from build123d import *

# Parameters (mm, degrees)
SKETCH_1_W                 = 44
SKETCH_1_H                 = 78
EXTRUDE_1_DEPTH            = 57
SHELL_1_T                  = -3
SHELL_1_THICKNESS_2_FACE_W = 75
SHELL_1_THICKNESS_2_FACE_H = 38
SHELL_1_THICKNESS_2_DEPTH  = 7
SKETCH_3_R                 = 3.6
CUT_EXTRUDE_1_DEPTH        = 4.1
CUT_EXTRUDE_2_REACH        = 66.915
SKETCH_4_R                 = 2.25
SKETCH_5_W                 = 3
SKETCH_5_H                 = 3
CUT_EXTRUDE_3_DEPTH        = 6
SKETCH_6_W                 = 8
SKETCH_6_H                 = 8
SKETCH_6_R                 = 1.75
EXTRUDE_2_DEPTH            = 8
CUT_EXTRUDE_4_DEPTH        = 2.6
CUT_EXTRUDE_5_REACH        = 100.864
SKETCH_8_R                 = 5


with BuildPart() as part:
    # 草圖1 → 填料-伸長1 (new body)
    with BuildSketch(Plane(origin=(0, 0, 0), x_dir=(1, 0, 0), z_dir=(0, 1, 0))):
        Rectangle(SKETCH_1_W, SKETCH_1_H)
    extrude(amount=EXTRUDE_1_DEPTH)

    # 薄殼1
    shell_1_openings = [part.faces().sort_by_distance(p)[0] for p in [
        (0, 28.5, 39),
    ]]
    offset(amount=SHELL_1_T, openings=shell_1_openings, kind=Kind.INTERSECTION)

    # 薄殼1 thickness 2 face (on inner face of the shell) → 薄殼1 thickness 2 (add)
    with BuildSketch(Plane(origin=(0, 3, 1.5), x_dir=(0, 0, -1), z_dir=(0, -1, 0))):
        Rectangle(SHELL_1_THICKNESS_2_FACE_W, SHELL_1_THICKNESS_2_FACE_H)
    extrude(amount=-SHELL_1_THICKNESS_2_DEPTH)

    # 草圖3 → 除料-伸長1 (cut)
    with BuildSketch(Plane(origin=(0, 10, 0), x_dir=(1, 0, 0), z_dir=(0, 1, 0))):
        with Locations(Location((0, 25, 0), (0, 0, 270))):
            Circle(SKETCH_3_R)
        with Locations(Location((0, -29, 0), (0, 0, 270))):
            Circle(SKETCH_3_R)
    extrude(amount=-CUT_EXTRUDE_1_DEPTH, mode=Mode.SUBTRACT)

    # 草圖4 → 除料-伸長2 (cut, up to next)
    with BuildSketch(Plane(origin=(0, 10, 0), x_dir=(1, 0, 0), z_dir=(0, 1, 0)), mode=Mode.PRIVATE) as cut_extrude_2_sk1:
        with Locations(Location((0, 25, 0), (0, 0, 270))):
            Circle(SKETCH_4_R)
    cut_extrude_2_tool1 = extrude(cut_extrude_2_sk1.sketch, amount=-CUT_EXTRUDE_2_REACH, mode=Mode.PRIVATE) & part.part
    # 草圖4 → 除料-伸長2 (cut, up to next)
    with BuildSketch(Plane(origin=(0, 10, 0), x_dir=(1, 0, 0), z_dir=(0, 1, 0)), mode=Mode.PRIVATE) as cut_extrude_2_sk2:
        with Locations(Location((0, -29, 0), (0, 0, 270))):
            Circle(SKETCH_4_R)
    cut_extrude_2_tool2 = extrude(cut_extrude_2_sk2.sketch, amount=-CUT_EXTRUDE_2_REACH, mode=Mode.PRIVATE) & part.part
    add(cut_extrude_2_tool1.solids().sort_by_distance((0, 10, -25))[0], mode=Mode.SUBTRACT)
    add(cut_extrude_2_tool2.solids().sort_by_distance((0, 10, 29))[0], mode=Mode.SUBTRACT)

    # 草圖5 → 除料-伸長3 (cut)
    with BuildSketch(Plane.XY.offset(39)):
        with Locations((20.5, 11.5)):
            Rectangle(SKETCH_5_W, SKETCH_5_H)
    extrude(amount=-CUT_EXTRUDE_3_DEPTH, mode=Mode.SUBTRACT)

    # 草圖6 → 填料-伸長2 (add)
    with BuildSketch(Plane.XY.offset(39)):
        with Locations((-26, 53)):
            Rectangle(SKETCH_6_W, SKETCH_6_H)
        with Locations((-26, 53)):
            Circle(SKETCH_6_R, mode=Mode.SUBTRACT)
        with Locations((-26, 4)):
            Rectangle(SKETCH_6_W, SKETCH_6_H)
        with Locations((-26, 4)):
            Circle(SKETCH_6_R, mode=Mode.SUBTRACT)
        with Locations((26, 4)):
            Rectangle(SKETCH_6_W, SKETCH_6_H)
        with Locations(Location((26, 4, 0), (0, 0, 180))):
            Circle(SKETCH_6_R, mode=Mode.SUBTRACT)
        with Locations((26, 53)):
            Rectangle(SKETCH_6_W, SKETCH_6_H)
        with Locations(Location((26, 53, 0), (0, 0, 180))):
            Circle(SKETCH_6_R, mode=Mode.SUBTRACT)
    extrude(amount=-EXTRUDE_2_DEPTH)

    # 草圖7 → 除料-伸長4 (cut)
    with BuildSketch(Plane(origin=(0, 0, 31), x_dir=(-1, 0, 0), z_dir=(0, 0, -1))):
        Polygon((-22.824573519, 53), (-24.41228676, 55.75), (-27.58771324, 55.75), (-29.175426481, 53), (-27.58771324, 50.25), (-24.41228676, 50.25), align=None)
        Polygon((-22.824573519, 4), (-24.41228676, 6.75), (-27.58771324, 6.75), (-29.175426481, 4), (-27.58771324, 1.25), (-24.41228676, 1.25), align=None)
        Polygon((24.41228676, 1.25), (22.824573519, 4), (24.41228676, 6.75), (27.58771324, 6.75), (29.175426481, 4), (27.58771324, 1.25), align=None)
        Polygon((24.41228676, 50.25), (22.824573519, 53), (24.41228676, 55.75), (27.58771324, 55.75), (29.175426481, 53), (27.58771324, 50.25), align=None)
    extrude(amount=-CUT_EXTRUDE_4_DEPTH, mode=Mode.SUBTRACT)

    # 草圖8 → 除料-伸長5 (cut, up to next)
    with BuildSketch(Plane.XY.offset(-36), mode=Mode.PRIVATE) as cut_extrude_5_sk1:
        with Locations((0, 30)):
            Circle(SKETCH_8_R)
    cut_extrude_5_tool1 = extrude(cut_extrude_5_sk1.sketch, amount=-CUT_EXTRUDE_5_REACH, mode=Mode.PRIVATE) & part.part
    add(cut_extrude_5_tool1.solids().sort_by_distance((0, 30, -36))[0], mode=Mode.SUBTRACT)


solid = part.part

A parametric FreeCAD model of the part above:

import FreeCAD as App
import Part
import Sketcher
Q = App.Units.Quantity


def faces_at(feature, points):
    """Names of the faces that lie closest to the given points."""
    faces = feature.Shape.Faces
    near = lambda p: min(range(len(faces)), key=lambda i: faces[i].distToShape(Part.Vertex(*p))[0])
    return sorted({f"Face{near(p) + 1}" for p in points})


def add_polygon(sketch, points):
    """Adds a closed chain of lines whose ends are joined by coincident constraints."""
    first, n = sketch.GeometryCount, len(points)
    for a, b in zip(points, points[1:] + points[:1]):
        sketch.addGeometry(Part.LineSegment(App.Vector(*a, 0), App.Vector(*b, 0)), False)
    for i in range(n):
        sketch.addConstraint(Sketcher.Constraint("Coincident", first + i, 2, first + (i + 1) % n, 1))

doc = App.newDocument("Part")
body = doc.addObject("PartDesign::Body", "Body")

# Sketch on XZ plane
sketch1 = body.newObject("Sketcher::SketchObject", "Sketch")
sketch1.AttachmentSupport = (doc.getObject("XZ_Plane"), [""])
sketch1.MapMode = "FlatFace"
add_polygon(sketch1, [(-22, -39), (-22, 39), (22, 39), (22, -39)])  # lines 0-3
sketch1.addConstraint(Sketcher.Constraint("Vertical", 0))
sketch1.addConstraint(Sketcher.Constraint("Horizontal", 1))
sketch1.addConstraint(Sketcher.Constraint("Vertical", 2))
sketch1.addConstraint(Sketcher.Constraint("Horizontal", 3))
sketch1.addConstraint(Sketcher.Constraint("Symmetric", 0, 2, 2, 2, -1, 1))
sketch1.addConstraint(Sketcher.Constraint("DistanceX", 1, 1, 1, 2, Q("44 mm")))
sketch1.addConstraint(Sketcher.Constraint("DistanceY", 0, 1, 0, 2, Q("78 mm")))
pad1 = body.newObject("PartDesign::Pad", "Pad")
pad1.Profile = sketch1
pad1.Length = 57
pad1.Reversed = True
doc.recompute()

thickness = body.newObject("PartDesign::Thickness", "Thickness")
thickness.Base = (pad1, faces_at(pad1, [(0, 28.5, 39)]))
thickness.Value = 3
thickness.Reversed = True
thickness.Join = "Intersection"

# Sketch on XZ plane
sketch2 = body.newObject("Sketcher::SketchObject", "Sketch001")
sketch2.AttachmentSupport = (doc.getObject("XZ_Plane"), [""])
sketch2.MapMode = "FlatFace"
sketch2.AttachmentOffset = App.Placement(App.Vector(0, 0, -3), App.Rotation())
add_polygon(sketch2, [(19, 39), (-19, 39), (-19, -36), (19, -36)])  # lines 0-3
sketch2.addConstraint(Sketcher.Constraint("Horizontal", 0))
sketch2.addConstraint(Sketcher.Constraint("Vertical", 1))
sketch2.addConstraint(Sketcher.Constraint("Horizontal", 2))
sketch2.addConstraint(Sketcher.Constraint("Vertical", 3))
sketch2.addConstraint(Sketcher.Constraint("DistanceX", 0, 2, 0, 1, Q("38 mm")))
sketch2.addConstraint(Sketcher.Constraint("DistanceY", 1, 2, 1, 1, Q("75 mm")))
sketch2.addConstraint(Sketcher.Constraint("DistanceX", 0, 2, -1, 1, Q("19 mm")))
sketch2.addConstraint(Sketcher.Constraint("DistanceY", -1, 1, 0, 2, Q("39 mm")))
pad2 = body.newObject("PartDesign::Pad", "Pad001")
pad2.Profile = sketch2
pad2.Length = 7
pad2.Reversed = True

# Sketch on XZ plane
sketch3 = body.newObject("Sketcher::SketchObject", "Sketch002")
sketch3.AttachmentSupport = (doc.getObject("XZ_Plane"), [""])
sketch3.MapMode = "FlatFace"
sketch3.AttachmentOffset = App.Placement(App.Vector(0, 0, -10), App.Rotation())
sketch3.addGeometry(Part.Circle(App.Vector(0, -25, 0), App.Vector(0, 0, 1), 3.6), False)
sketch3.addGeometry(Part.Circle(App.Vector(0, 29, 0), App.Vector(0, 0, 1), 3.6), False)
sketch3.addConstraint(Sketcher.Constraint("Equal", 0, 1))
sketch3.addConstraint(Sketcher.Constraint("PointOnObject", 0, 3, -2))
sketch3.addConstraint(Sketcher.Constraint("PointOnObject", 1, 3, -2))
sketch3.addConstraint(Sketcher.Constraint("Diameter", 0, Q("7.2 mm")))
sketch3.addConstraint(Sketcher.Constraint("DistanceY", 0, 3, -1, 1, Q("25 mm")))
sketch3.addConstraint(Sketcher.Constraint("DistanceY", -1, 1, 1, 3, Q("29 mm")))
pocket1 = body.newObject("PartDesign::Pocket", "Pocket")
pocket1.Profile = sketch3
pocket1.Length = 4.1
pocket1.Reversed = True

# Sketch on XZ plane
sketch4 = body.newObject("Sketcher::SketchObject", "Sketch003")
sketch4.AttachmentSupport = (doc.getObject("XZ_Plane"), [""])
sketch4.MapMode = "FlatFace"
sketch4.AttachmentOffset = App.Placement(App.Vector(0, 0, -10), App.Rotation())
sketch4.addGeometry(Part.Circle(App.Vector(0, -25, 0), App.Vector(0, 0, 1), 2.2), False)
sketch4.addConstraint(Sketcher.Constraint("PointOnObject", 0, 3, -2))
sketch4.addConstraint(Sketcher.Constraint("Diameter", 0, Q("4.5 mm")))
sketch4.addConstraint(Sketcher.Constraint("DistanceY", 0, 3, -1, 1, Q("25 mm")))
pocket2 = body.newObject("PartDesign::Pocket", "Pocket001")
pocket2.Profile = sketch4
pocket2.Length = 10
pocket2.Reversed = True

# Sketch on XZ plane
sketch5 = body.newObject("Sketcher::SketchObject", "Sketch004")
sketch5.AttachmentSupport = (doc.getObject("XZ_Plane"), [""])
sketch5.MapMode = "FlatFace"
sketch5.AttachmentOffset = App.Placement(App.Vector(0, 0, -10), App.Rotation())
sketch5.addGeometry(Part.Circle(App.Vector(0, 29, 0), App.Vector(0, 0, 1), 2.2), False)
sketch5.addConstraint(Sketcher.Constraint("PointOnObject", 0, 3, -2))
sketch5.addConstraint(Sketcher.Constraint("Diameter", 0, Q("4.5 mm")))
sketch5.addConstraint(Sketcher.Constraint("DistanceY", -1, 1, 0, 3, Q("29 mm")))
pocket3 = body.newObject("PartDesign::Pocket", "Pocket002")
pocket3.Profile = sketch5
pocket3.Length = 10
pocket3.Reversed = True

# Sketch on XY plane
sketch6 = body.newObject("Sketcher::SketchObject", "Sketch005")
sketch6.AttachmentSupport = (doc.getObject("XY_Plane"), [""])
sketch6.MapMode = "FlatFace"
sketch6.AttachmentOffset = App.Placement(App.Vector(0, 0, 39), App.Rotation())
add_polygon(sketch6, [(19, 13), (19, 10), (22, 10), (22, 13)])  # lines 0-3
sketch6.addConstraint(Sketcher.Constraint("Vertical", 0))
sketch6.addConstraint(Sketcher.Constraint("Horizontal", 1))
sketch6.addConstraint(Sketcher.Constraint("Vertical", 2))
sketch6.addConstraint(Sketcher.Constraint("Horizontal", 3))
sketch6.addConstraint(Sketcher.Constraint("Equal", 3, 0))
sketch6.addConstraint(Sketcher.Constraint("DistanceX", 1, 1, 1, 2, Q("3 mm")))
sketch6.addConstraint(Sketcher.Constraint("DistanceX", -1, 1, 0, 2, Q("19 mm")))
sketch6.addConstraint(Sketcher.Constraint("DistanceY", -1, 1, 0, 2, Q("10 mm")))
pocket4 = body.newObject("PartDesign::Pocket", "Pocket003")
pocket4.Profile = sketch6
pocket4.Length = 6

# Sketch on XY plane
sketch7 = body.newObject("Sketcher::SketchObject", "Sketch006")
sketch7.AttachmentSupport = (doc.getObject("XY_Plane"), [""])
sketch7.MapMode = "FlatFace"
sketch7.AttachmentOffset = App.Placement(App.Vector(0, 0, 39), App.Rotation())
add_polygon(sketch7, [(-30, 57), (-30, 49), (-22, 49), (-22, 57)])  # lines 0-3
sketch7.addGeometry(Part.Circle(App.Vector(-26, 53, 0), App.Vector(0, 0, 1), 1.8), False)  # 4
add_polygon(sketch7, [(-30, 8), (-30, 0), (-22, 0), (-22, 8)])  # lines 5-8
sketch7.addGeometry(Part.Circle(App.Vector(-26, 4, 0), App.Vector(0, 0, 1), 1.8), False)  # 9
add_polygon(sketch7, [(22, 8), (22, 0), (30, 0), (30, 8)])  # lines 10-13
sketch7.addGeometry(Part.Circle(App.Vector(26, 4, 0), App.Vector(0, 0, 1), 1.8), False)  # 14
add_polygon(sketch7, [(22, 57), (22, 49), (30, 49), (30, 57)])  # lines 15-18
sketch7.addGeometry(Part.Circle(App.Vector(26, 53, 0), App.Vector(0, 0, 1), 1.8), False)  # 19
sketch7.addConstraint(Sketcher.Constraint("Vertical", 0))
sketch7.addConstraint(Sketcher.Constraint("Horizontal", 1))
sketch7.addConstraint(Sketcher.Constraint("Vertical", 2))
sketch7.addConstraint(Sketcher.Constraint("Horizontal", 3))
sketch7.addConstraint(Sketcher.Constraint("Vertical", 5))
sketch7.addConstraint(Sketcher.Constraint("Horizontal", 6))
sketch7.addConstraint(Sketcher.Constraint("Vertical", 7))
sketch7.addConstraint(Sketcher.Constraint("Horizontal", 8))
sketch7.addConstraint(Sketcher.Constraint("Vertical", 10))
sketch7.addConstraint(Sketcher.Constraint("Horizontal", 11))
sketch7.addConstraint(Sketcher.Constraint("Vertical", 12))
sketch7.addConstraint(Sketcher.Constraint("Horizontal", 13))
sketch7.addConstraint(Sketcher.Constraint("Vertical", 15))
sketch7.addConstraint(Sketcher.Constraint("Horizontal", 16))
sketch7.addConstraint(Sketcher.Constraint("Vertical", 17))
sketch7.addConstraint(Sketcher.Constraint("Horizontal", 18))
sketch7.addConstraint(Sketcher.Constraint("Equal", 4, 9))
sketch7.addConstraint(Sketcher.Constraint("Equal", 9, 14))
sketch7.addConstraint(Sketcher.Constraint("Equal", 14, 19))
sketch7.addConstraint(Sketcher.Constraint("Symmetric", 6, 2, 10, 2, -1, 1))
sketch7.addConstraint(Sketcher.Constraint("Symmetric", 9, 3, 14, 3, -2))
sketch7.addConstraint(Sketcher.Constraint("Symmetric", 4, 3, 19, 3, -2))
sketch7.addConstraint(Sketcher.Constraint("Symmetric", 5, 2, 11, 2, -2))
sketch7.addConstraint(Sketcher.Constraint("Symmetric", 1, 2, 15, 2, -2))
sketch7.addConstraint(Sketcher.Constraint("Symmetric", 3, 2, 17, 2, -2))
sketch7.addConstraint(Sketcher.Constraint("Horizontal", 8, 2, 12, 2))
sketch7.addConstraint(Sketcher.Constraint("Vertical", 4, 3, 9, 3))
sketch7.addConstraint(Sketcher.Constraint("Vertical", 3, 2, 5, 2))
sketch7.addConstraint(Sketcher.Constraint("Vertical", 2, 2, 6, 2))
sketch7.addConstraint(Sketcher.Constraint("Equal", 18, 0))
sketch7.addConstraint(Sketcher.Constraint("Equal", 2, 5))
sketch7.addConstraint(Sketcher.Constraint("Diameter", 4, Q("3.5 mm")))
sketch7.addConstraint(Sketcher.Constraint("DistanceX", 1, 1, 1, 2, Q("8 mm")))
sketch7.addConstraint(Sketcher.Constraint("DistanceX", 4, 3, -1, 1, Q("26 mm")))
sketch7.addConstraint(Sketcher.Constraint("DistanceY", -1, 1, 4, 3, Q("53 mm")))
sketch7.addConstraint(Sketcher.Constraint("DistanceY", -1, 1, 9, 3, Q("4 mm")))
sketch7.addConstraint(Sketcher.Constraint("DistanceX", 0, 2, -1, 1, Q("30 mm")))
sketch7.addConstraint(Sketcher.Constraint("DistanceY", -1, 1, 0, 2, Q("49 mm")))
pad3 = body.newObject("PartDesign::Pad", "Pad002")
pad3.Profile = sketch7
pad3.Length = 8
pad3.Reversed = True

# Sketch on XY plane
sketch8 = body.newObject("Sketcher::SketchObject", "Sketch007")
sketch8.AttachmentSupport = (doc.getObject("XY_Plane"), [""])
sketch8.MapMode = "FlatFace"
sketch8.AttachmentOffset = App.Placement(App.Vector(0, 0, 31), App.Rotation())
add_polygon(sketch8, [(22.8, 53), (24.4, 55.8), (27.6, 55.8), (29.2, 53), (27.6, 50.2), (24.4, 50.2)])  # lines 0-5
add_polygon(sketch8, [(22.8, 4), (24.4, 6.8), (27.6, 6.8), (29.2, 4), (27.6, 1.2), (24.4, 1.2)])  # lines 6-11
add_polygon(sketch8, [(-22.8, 4), (-24.4, 1.2), (-27.6, 1.2), (-29.2, 4), (-27.6, 6.8), (-24.4, 6.8)])  # lines 12-17
add_polygon(sketch8, [(-22.8, 53), (-24.4, 50.2), (-27.6, 50.2), (-29.2, 53), (-27.6, 55.8), (-24.4, 55.8)])  # lines 18-23
sketch8.addConstraint(Sketcher.Constraint("Horizontal", 1))
sketch8.addConstraint(Sketcher.Constraint("Horizontal", 4))
sketch8.addConstraint(Sketcher.Constraint("Horizontal", 7))
sketch8.addConstraint(Sketcher.Constraint("Horizontal", 10))
sketch8.addConstraint(Sketcher.Constraint("Horizontal", 13))
sketch8.addConstraint(Sketcher.Constraint("Horizontal", 16))
sketch8.addConstraint(Sketcher.Constraint("Horizontal", 19))
sketch8.addConstraint(Sketcher.Constraint("Horizontal", 22))
sketch8.addConstraint(Sketcher.Constraint("Symmetric", 10, 2, 12, 2, -2))
sketch8.addConstraint(Sketcher.Constraint("Symmetric", 8, 2, 14, 2, -2))
sketch8.addConstraint(Sketcher.Constraint("Symmetric", 7, 2, 15, 2, -2))
sketch8.addConstraint(Sketcher.Constraint("Symmetric", 11, 2, 17, 2, -2))
sketch8.addConstraint(Sketcher.Constraint("Symmetric", 4, 2, 18, 2, -2))
sketch8.addConstraint(Sketcher.Constraint("Symmetric", 2, 2, 20, 2, -2))
sketch8.addConstraint(Sketcher.Constraint("Symmetric", 1, 2, 21, 2, -2))
sketch8.addConstraint(Sketcher.Constraint("Symmetric", 5, 2, 23, 2, -2))
sketch8.addConstraint(Sketcher.Constraint("Parallel", 0, 3))
sketch8.addConstraint(Sketcher.Constraint("Parallel", 2, 5))
sketch8.addConstraint(Sketcher.Constraint("Parallel", 3, 6))
sketch8.addConstraint(Sketcher.Constraint("Parallel", 5, 8))
sketch8.addConstraint(Sketcher.Constraint("Parallel", 6, 9))
sketch8.addConstraint(Sketcher.Constraint("Parallel", 8, 11))
sketch8.addConstraint(Sketcher.Constraint("Parallel", 9, 12))
sketch8.addConstraint(Sketcher.Constraint("Parallel", 11, 14))
sketch8.addConstraint(Sketcher.Constraint("Parallel", 14, 17))
sketch8.addConstraint(Sketcher.Constraint("Parallel", 17, 20))
sketch8.addConstraint(Sketcher.Constraint("Parallel", 20, 23))
sketch8.addConstraint(Sketcher.Constraint("Horizontal", 2, 2, 5, 2))
sketch8.addConstraint(Sketcher.Constraint("Horizontal", 8, 2, 11, 2))
sketch8.addConstraint(Sketcher.Constraint("Vertical", 1, 2, 3, 2))
sketch8.addConstraint(Sketcher.Constraint("Vertical", 4, 2, 6, 2))
sketch8.addConstraint(Sketcher.Constraint("Vertical", 3, 2, 7, 2))
sketch8.addConstraint(Sketcher.Constraint("Vertical", 2, 2, 8, 2))
sketch8.addConstraint(Sketcher.Constraint("Vertical", 7, 2, 9, 2))
sketch8.addConstraint(Sketcher.Constraint("Angle", 0, Q("60 deg")))
sketch8.addConstraint(Sketcher.Constraint("DistanceY", -1, 1, 2, 2, Q("53 mm")))
sketch8.addConstraint(Sketcher.Constraint("DistanceY", -1, 1, 8, 2, Q("4 mm")))
sketch8.addConstraint(Sketcher.Constraint("DistanceX", 12, 2, 9, 2, Q("52 mm")))
sketch8.addConstraint(Sketcher.Constraint("DistanceY", 3, 2, 1, 2, Q("5.5 mm")))
sketch8.addConstraint(Sketcher.Constraint("DistanceX", 1, 1, 1, 2, Q("3.175426 mm")))
pocket5 = body.newObject("PartDesign::Pocket", "Pocket004")
pocket5.Profile = sketch8
pocket5.Length = 2.6
pocket5.Reversed = True

# Sketch on XY plane
sketch9 = body.newObject("Sketcher::SketchObject", "Sketch008")
sketch9.AttachmentSupport = (doc.getObject("XY_Plane"), [""])
sketch9.MapMode = "FlatFace"
sketch9.AttachmentOffset = App.Placement(App.Vector(0, 0, -36), App.Rotation())
sketch9.addGeometry(Part.Circle(App.Vector(0, 30, 0), App.Vector(0, 0, 1), 5), False)
sketch9.addConstraint(Sketcher.Constraint("PointOnObject", 0, 3, -2))
sketch9.addConstraint(Sketcher.Constraint("Diameter", 0, Q("10 mm")))
sketch9.addConstraint(Sketcher.Constraint("DistanceY", -1, 1, 0, 3, Q("30 mm")))
pocket6 = body.newObject("PartDesign::Pocket", "Pocket005")
pocket6.Profile = sketch9
pocket6.Type = "UpToFirst"

doc.recompute()
